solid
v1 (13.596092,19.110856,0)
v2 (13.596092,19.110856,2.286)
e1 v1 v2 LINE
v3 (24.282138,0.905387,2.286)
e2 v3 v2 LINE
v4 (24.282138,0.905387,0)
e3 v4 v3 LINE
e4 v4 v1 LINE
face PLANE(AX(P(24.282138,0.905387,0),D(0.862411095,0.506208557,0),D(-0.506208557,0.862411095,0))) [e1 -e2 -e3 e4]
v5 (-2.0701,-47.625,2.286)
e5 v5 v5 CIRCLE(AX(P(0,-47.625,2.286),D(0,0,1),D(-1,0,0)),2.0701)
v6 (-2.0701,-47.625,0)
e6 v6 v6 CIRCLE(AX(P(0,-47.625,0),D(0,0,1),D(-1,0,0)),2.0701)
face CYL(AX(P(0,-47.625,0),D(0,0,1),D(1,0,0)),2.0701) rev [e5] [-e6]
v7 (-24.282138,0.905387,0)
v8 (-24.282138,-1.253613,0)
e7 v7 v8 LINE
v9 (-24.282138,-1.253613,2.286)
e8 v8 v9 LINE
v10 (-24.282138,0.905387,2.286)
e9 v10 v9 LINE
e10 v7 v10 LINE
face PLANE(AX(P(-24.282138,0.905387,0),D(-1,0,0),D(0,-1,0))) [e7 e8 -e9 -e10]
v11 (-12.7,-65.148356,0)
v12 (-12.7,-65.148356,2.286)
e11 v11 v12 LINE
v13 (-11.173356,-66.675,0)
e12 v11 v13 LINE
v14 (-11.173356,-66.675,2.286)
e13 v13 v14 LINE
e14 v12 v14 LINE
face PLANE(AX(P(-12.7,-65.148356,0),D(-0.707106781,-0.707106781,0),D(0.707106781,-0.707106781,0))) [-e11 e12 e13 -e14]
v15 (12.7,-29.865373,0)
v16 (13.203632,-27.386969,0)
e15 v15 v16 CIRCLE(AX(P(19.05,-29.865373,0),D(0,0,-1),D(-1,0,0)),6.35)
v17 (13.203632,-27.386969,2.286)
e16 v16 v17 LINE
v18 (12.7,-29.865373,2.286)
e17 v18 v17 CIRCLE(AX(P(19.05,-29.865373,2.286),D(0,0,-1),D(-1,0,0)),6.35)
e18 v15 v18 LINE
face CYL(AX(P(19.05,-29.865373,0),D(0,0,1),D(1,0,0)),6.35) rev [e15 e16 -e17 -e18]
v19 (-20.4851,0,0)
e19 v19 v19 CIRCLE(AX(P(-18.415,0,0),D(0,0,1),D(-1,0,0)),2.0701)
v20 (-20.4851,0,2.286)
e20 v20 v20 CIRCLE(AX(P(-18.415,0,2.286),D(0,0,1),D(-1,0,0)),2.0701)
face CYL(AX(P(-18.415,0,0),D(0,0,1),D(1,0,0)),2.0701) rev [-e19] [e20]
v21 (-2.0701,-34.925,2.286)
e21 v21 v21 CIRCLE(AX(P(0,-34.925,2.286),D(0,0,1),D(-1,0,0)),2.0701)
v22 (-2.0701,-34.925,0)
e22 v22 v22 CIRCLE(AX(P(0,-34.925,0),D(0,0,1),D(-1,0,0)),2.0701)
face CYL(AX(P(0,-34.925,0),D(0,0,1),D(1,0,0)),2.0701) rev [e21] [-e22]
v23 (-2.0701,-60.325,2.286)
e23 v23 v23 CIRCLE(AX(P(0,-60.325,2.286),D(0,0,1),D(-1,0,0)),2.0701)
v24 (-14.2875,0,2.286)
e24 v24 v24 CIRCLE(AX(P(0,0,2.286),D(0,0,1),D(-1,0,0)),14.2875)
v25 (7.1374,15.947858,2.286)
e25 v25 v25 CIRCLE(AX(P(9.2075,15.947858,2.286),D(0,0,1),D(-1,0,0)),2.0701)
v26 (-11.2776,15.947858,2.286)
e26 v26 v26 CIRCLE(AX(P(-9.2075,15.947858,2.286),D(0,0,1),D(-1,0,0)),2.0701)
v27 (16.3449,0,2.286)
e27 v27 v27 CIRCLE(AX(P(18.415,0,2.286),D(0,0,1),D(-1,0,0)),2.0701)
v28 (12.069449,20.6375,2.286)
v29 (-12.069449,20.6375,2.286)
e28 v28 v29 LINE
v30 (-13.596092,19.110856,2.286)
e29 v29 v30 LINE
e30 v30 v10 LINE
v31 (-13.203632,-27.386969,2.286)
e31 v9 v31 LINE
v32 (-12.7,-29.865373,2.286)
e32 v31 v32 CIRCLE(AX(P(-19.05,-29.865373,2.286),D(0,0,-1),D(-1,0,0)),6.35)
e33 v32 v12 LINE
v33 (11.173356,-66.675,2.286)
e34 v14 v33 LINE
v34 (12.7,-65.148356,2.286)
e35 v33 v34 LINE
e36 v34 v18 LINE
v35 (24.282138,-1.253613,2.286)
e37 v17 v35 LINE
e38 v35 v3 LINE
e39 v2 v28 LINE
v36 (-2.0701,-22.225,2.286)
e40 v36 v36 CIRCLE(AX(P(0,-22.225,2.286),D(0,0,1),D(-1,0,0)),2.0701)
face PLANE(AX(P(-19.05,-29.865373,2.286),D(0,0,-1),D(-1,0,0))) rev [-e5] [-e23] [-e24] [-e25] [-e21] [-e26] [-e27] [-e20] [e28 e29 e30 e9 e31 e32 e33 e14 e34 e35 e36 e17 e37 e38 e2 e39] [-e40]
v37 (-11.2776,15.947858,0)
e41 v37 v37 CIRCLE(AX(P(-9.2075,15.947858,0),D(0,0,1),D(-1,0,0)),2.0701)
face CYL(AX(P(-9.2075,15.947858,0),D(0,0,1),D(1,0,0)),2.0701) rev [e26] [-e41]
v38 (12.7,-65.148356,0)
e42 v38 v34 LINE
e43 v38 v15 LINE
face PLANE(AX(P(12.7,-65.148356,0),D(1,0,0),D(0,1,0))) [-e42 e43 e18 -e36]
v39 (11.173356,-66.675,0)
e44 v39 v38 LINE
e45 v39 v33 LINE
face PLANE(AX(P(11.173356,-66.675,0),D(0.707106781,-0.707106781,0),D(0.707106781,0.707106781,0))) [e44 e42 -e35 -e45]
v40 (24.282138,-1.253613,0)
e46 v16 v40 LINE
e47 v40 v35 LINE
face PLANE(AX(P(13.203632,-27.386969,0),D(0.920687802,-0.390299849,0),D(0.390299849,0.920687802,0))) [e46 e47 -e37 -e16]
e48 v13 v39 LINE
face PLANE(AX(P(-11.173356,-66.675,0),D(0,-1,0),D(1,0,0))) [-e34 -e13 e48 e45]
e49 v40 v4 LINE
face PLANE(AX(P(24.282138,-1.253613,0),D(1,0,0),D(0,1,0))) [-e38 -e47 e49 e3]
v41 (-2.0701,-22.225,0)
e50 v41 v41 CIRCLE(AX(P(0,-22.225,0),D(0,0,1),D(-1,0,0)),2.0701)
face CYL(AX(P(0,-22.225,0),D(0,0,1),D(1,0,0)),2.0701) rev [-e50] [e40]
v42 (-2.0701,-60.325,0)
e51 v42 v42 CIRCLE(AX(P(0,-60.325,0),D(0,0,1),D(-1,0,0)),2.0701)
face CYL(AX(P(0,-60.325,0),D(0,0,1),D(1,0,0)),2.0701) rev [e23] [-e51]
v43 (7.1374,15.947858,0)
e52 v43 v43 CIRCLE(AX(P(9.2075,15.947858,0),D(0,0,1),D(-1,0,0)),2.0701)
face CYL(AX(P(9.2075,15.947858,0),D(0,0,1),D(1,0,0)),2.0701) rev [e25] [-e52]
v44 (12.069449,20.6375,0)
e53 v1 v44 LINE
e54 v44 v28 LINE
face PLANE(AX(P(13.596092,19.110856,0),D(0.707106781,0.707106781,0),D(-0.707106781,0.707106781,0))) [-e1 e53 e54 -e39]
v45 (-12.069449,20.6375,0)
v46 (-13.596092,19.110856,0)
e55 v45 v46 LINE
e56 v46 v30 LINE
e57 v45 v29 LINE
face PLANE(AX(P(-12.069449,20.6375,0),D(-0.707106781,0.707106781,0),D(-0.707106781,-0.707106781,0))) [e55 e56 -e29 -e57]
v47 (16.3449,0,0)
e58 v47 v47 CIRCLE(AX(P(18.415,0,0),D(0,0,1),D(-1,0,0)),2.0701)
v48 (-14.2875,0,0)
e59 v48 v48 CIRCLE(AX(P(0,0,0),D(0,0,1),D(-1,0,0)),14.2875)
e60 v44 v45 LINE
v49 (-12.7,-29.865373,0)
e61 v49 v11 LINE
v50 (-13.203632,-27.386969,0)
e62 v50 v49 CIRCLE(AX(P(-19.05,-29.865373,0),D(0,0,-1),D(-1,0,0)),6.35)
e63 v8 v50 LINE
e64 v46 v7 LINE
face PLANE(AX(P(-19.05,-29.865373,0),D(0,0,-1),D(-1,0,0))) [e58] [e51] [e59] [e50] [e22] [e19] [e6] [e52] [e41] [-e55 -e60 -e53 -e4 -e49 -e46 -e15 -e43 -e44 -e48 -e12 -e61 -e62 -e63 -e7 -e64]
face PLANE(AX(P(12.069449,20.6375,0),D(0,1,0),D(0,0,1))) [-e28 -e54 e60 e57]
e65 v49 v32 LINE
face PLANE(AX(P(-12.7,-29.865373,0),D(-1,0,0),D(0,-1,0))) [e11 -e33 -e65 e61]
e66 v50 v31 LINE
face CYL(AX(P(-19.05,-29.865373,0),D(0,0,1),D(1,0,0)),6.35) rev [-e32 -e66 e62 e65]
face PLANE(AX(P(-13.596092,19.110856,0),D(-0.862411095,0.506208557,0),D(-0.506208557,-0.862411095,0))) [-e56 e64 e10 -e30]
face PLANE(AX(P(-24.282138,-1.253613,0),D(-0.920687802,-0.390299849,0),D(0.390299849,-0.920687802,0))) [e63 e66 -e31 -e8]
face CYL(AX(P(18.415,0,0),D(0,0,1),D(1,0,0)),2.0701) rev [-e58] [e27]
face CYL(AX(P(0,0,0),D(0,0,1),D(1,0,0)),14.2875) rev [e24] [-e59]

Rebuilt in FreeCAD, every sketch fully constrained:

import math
import FreeCAD as App
import Part
import Sketcher
from FreeCAD import Vector
Q = App.Units.Quantity

doc = App.newDocument("Part")
body = doc.addObject("PartDesign::Body", "Body")

sketch1 = doc.addObject("Sketcher::SketchObject", "Sketch")
body.addObject(sketch1)
sketch1.AttachmentSupport = (doc.XY_Plane, [""])
sketch1.MapMode = "FlatFace"
sketch1.AttachmentOffset = App.Placement(Vector(0, 0, 0.09 * 25.4), App.Rotation())
sketch1.addGeometry(Part.LineSegment(Vector(-24.3, -1.3, 0), Vector(-13.2, -27.4, 0)), False)
sketch1.addGeometry(Part.ArcOfCircle(Part.Circle(Vector(-19.1, -29.9, 0), Vector(0, 0, 1), 6.4), math.radians(0), math.radians(23)), False)
sketch1.addGeometry(Part.LineSegment(Vector(-12.7, -29.9, 0), Vector(-12.7, -65.1, 0)), False)
sketch1.addGeometry(Part.LineSegment(Vector(-12.7, -65.1, 0), Vector(-11.2, -66.7, 0)), False)
sketch1.addGeometry(Part.LineSegment(Vector(-11.2, -66.7, 0), Vector(11.2, -66.7, 0)), False)
sketch1.addGeometry(Part.LineSegment(Vector(11.2, -66.7, 0), Vector(12.7, -65.1, 0)), False)
sketch1.addGeometry(Part.LineSegment(Vector(12.7, -65.1, 0), Vector(12.7, -29.9, 0)), False)
sketch1.addGeometry(Part.ArcOfCircle(Part.Circle(Vector(19.1, -29.9, 0), Vector(0, 0, 1), 6.4), math.radians(157), math.radians(180)), False)
sketch1.addGeometry(Part.LineSegment(Vector(13.2, -27.4, 0), Vector(24.3, -1.3, 0)), False)
sketch1.addGeometry(Part.LineSegment(Vector(24.3, -1.3, 0), Vector(24.3, 0.9, 0)), False)
sketch1.addGeometry(Part.LineSegment(Vector(24.3, 0.9, 0), Vector(13.6, 19.1, 0)), False)
sketch1.addGeometry(Part.LineSegment(Vector(13.6, 19.1, 0), Vector(12.1, 20.6, 0)), False)
sketch1.addGeometry(Part.LineSegment(Vector(12.1, 20.6, 0), Vector(-12.1, 20.6, 0)), False)
sketch1.addGeometry(Part.LineSegment(Vector(-12.1, 20.6, 0), Vector(-13.6, 19.1, 0)), False)
sketch1.addGeometry(Part.LineSegment(Vector(-13.6, 19.1, 0), Vector(-24.3, 0.9, 0)), False)
sketch1.addGeometry(Part.LineSegment(Vector(-24.3, 0.9, 0), Vector(-24.3, -1.3, 0)), False)
sketch1.addGeometry(Part.Circle(Vector(0, -60.3, 0), Vector(0, 0, 1), 2.1), False)
sketch1.addGeometry(Part.Circle(Vector(0, -47.6, 0), Vector(0, 0, 1), 2.1), False)
sketch1.addGeometry(Part.Circle(Vector(0, -34.9, 0), Vector(0, 0, 1), 2.1), False)
sketch1.addGeometry(Part.Circle(Vector(0, -22.2, 0), Vector(0, 0, 1), 2.1), False)
sketch1.addGeometry(Part.Circle(Vector(-18.4, 0, 0), Vector(0, 0, 1), 2.1), False)
sketch1.addGeometry(Part.Circle(Vector(-9.2, 15.9, 0), Vector(0, 0, 1), 2.1), False)
sketch1.addGeometry(Part.Circle(Vector(0, 0, 0), Vector(0, 0, 1), 14.3), False)
sketch1.addGeometry(Part.Circle(Vector(9.2, 15.9, 0), Vector(0, 0, 1), 2.1), False)
sketch1.addGeometry(Part.Circle(Vector(18.4, 0, 0), Vector(0, 0, 1), 2.1), False)
sketch1.addConstraint(Sketcher.Constraint("Tangent", 0, 2, 1, 2))
sketch1.addConstraint(Sketcher.Constraint("Tangent", 1, 1, 2, 1))
sketch1.addConstraint(Sketcher.Constraint("Coincident", 2, 2, 3, 1))
sketch1.addConstraint(Sketcher.Constraint("Coincident", 3, 2, 4, 1))
sketch1.addConstraint(Sketcher.Constraint("Coincident", 4, 2, 5, 1))
sketch1.addConstraint(Sketcher.Constraint("Coincident", 5, 2, 6, 1))
sketch1.addConstraint(Sketcher.Constraint("Tangent", 6, 2, 7, 2))
sketch1.addConstraint(Sketcher.Constraint("Tangent", 7, 1, 8, 1))
sketch1.addConstraint(Sketcher.Constraint("Coincident", 8, 2, 9, 1))
sketch1.addConstraint(Sketcher.Constraint("Coincident", 9, 2, 10, 1))
sketch1.addConstraint(Sketcher.Constraint("Coincident", 10, 2, 11, 1))
sketch1.addConstraint(Sketcher.Constraint("Coincident", 11, 2, 12, 1))
sketch1.addConstraint(Sketcher.Constraint("Coincident", 12, 2, 13, 1))
sketch1.addConstraint(Sketcher.Constraint("Coincident", 13, 2, 14, 1))
sketch1.addConstraint(Sketcher.Constraint("Coincident", 14, 2, 15, 1))
sketch1.addConstraint(Sketcher.Constraint("Coincident", 15, 2, 0, 1))
sketch1.addConstraint(Sketcher.Constraint("Vertical", 2))
sketch1.addConstraint(Sketcher.Constraint("Horizontal", 4))
sketch1.addConstraint(Sketcher.Constraint("Vertical", 6))
sketch1.addConstraint(Sketcher.Constraint("Vertical", 9))
sketch1.addConstraint(Sketcher.Constraint("Horizontal", 12))
sketch1.addConstraint(Sketcher.Constraint("Vertical", 15))
sketch1.addConstraint(Sketcher.Constraint("Coincident", 22, 3, -1, 1))
sketch1.addConstraint(Sketcher.Constraint("Equal", 1, 7))
sketch1.addConstraint(Sketcher.Constraint("Equal", 16, 17))
sketch1.addConstraint(Sketcher.Constraint("Equal", 17, 18))
sketch1.addConstraint(Sketcher.Constraint("Equal", 18, 19))
sketch1.addConstraint(Sketcher.Constraint("Equal", 19, 20))
sketch1.addConstraint(Sketcher.Constraint("Equal", 20, 21))
sketch1.addConstraint(Sketcher.Constraint("Equal", 21, 23))
sketch1.addConstraint(Sketcher.Constraint("Equal", 23, 24))
sketch1.addConstraint(Sketcher.Constraint("Symmetric", 20, 3, 24, 3, -1, 1))
sketch1.addConstraint(Sketcher.Constraint("Symmetric", 1, 3, 7, 3, -2))
sketch1.addConstraint(Sketcher.Constraint("Symmetric", 21, 3, 23, 3, -2))
sketch1.addConstraint(Sketcher.Constraint("Symmetric", 10, 2, 13, 2, -2))
sketch1.addConstraint(Sketcher.Constraint("Symmetric", 9, 2, 14, 2, -2))
sketch1.addConstraint(Sketcher.Constraint("PointOnObject", 16, 3, -2))
sketch1.addConstraint(Sketcher.Constraint("PointOnObject", 17, 3, -2))
sketch1.addConstraint(Sketcher.Constraint("PointOnObject", 18, 3, -2))
sketch1.addConstraint(Sketcher.Constraint("PointOnObject", 19, 3, -2))
sketch1.addConstraint(Sketcher.Constraint("PointOnObject", 20, 3, -1))
sketch1.addConstraint(Sketcher.Constraint("Perpendicular", 3, 5))
sketch1.addConstraint(Sketcher.Constraint("Perpendicular", 5, 11))
sketch1.addConstraint(Sketcher.Constraint("Perpendicular", 11, 13))
sketch1.addConstraint(Sketcher.Constraint("Horizontal", 2, 2, 5, 2))
sketch1.addConstraint(Sketcher.Constraint("Horizontal", 0, 2, 7, 1))
sketch1.addConstraint(Sketcher.Constraint("Equal", 3, 5))
sketch1.addConstraint(Sketcher.Constraint("Equal", 5, 11))
sketch1.addConstraint(Sketcher.Constraint("Radius", 1, Q("0.25 in")))
sketch1.addConstraint(Sketcher.Constraint("Diameter", 16, Q("0.163 in")))
sketch1.addConstraint(Sketcher.Constraint("Diameter", 22, Q("1.125 in")))
sketch1.addConstraint(Sketcher.Constraint("DistanceY", 16, 3, 18, 3, Q("1 in")))
sketch1.addConstraint(Sketcher.Constraint("DistanceY", 17, 3, 19, 3, Q("1 in")))
sketch1.addConstraint(Sketcher.Constraint("DistanceX", 2, 2, 5, 2, Q("1 in")))
sketch1.addConstraint(Sketcher.Constraint("DistanceY", 16, 3, 17, 3, Q("0.5 in")))
sketch1.addConstraint(Sketcher.Constraint("DistanceY", 9, 1, 9, 2, Q("0.085 in")))
sketch1.addConstraint(Sketcher.Constraint("DistanceY", 3, 2, 16, 3, Q("0.25 in")))
sketch1.addConstraint(Sketcher.Constraint("Distance", 3, Q("0.085 in")))
sketch1.addConstraint(Sketcher.Constraint("DistanceY", 16, 3, -1, 1, Q("2.375 in")))
sketch1.addConstraint(Sketcher.Constraint("DistanceX", 20, 3, -1, 1, Q("0.725 in")))
sketch1.addConstraint(Sketcher.Constraint("DistanceY", -1, 1, 11, 2, Q("0.8125 in")))
sketch1.addConstraint(Sketcher.Constraint("DistanceX", 21, 3, 23, 3, Q("0.725 in")))
sketch1.addConstraint(Sketcher.Constraint("Distance", 0, Q("28.384601 mm")))
sketch1.addConstraint(Sketcher.Constraint("DistanceY", 23, 3, 10, 2, Q("3.162999 mm")))
sketch1.addConstraint(Sketcher.Constraint("DistanceX", 12, 2, 12, 1, Q("24.138898 mm")))
sketch1.addConstraint(Sketcher.Constraint("DistanceY", 2, 2, 2, 1, Q("35.282983 mm")))
sketch1.addConstraint(Sketcher.Constraint("DistanceY", 0, 2, -1, 1, Q("27.386969 mm")))
pad1 = doc.addObject("PartDesign::Pad", "Pad")
body.addObject(pad1)
pad1.Profile = sketch1
pad1.Length = Q("0.09 in")
pad1.Reversed = True

doc.recompute()
